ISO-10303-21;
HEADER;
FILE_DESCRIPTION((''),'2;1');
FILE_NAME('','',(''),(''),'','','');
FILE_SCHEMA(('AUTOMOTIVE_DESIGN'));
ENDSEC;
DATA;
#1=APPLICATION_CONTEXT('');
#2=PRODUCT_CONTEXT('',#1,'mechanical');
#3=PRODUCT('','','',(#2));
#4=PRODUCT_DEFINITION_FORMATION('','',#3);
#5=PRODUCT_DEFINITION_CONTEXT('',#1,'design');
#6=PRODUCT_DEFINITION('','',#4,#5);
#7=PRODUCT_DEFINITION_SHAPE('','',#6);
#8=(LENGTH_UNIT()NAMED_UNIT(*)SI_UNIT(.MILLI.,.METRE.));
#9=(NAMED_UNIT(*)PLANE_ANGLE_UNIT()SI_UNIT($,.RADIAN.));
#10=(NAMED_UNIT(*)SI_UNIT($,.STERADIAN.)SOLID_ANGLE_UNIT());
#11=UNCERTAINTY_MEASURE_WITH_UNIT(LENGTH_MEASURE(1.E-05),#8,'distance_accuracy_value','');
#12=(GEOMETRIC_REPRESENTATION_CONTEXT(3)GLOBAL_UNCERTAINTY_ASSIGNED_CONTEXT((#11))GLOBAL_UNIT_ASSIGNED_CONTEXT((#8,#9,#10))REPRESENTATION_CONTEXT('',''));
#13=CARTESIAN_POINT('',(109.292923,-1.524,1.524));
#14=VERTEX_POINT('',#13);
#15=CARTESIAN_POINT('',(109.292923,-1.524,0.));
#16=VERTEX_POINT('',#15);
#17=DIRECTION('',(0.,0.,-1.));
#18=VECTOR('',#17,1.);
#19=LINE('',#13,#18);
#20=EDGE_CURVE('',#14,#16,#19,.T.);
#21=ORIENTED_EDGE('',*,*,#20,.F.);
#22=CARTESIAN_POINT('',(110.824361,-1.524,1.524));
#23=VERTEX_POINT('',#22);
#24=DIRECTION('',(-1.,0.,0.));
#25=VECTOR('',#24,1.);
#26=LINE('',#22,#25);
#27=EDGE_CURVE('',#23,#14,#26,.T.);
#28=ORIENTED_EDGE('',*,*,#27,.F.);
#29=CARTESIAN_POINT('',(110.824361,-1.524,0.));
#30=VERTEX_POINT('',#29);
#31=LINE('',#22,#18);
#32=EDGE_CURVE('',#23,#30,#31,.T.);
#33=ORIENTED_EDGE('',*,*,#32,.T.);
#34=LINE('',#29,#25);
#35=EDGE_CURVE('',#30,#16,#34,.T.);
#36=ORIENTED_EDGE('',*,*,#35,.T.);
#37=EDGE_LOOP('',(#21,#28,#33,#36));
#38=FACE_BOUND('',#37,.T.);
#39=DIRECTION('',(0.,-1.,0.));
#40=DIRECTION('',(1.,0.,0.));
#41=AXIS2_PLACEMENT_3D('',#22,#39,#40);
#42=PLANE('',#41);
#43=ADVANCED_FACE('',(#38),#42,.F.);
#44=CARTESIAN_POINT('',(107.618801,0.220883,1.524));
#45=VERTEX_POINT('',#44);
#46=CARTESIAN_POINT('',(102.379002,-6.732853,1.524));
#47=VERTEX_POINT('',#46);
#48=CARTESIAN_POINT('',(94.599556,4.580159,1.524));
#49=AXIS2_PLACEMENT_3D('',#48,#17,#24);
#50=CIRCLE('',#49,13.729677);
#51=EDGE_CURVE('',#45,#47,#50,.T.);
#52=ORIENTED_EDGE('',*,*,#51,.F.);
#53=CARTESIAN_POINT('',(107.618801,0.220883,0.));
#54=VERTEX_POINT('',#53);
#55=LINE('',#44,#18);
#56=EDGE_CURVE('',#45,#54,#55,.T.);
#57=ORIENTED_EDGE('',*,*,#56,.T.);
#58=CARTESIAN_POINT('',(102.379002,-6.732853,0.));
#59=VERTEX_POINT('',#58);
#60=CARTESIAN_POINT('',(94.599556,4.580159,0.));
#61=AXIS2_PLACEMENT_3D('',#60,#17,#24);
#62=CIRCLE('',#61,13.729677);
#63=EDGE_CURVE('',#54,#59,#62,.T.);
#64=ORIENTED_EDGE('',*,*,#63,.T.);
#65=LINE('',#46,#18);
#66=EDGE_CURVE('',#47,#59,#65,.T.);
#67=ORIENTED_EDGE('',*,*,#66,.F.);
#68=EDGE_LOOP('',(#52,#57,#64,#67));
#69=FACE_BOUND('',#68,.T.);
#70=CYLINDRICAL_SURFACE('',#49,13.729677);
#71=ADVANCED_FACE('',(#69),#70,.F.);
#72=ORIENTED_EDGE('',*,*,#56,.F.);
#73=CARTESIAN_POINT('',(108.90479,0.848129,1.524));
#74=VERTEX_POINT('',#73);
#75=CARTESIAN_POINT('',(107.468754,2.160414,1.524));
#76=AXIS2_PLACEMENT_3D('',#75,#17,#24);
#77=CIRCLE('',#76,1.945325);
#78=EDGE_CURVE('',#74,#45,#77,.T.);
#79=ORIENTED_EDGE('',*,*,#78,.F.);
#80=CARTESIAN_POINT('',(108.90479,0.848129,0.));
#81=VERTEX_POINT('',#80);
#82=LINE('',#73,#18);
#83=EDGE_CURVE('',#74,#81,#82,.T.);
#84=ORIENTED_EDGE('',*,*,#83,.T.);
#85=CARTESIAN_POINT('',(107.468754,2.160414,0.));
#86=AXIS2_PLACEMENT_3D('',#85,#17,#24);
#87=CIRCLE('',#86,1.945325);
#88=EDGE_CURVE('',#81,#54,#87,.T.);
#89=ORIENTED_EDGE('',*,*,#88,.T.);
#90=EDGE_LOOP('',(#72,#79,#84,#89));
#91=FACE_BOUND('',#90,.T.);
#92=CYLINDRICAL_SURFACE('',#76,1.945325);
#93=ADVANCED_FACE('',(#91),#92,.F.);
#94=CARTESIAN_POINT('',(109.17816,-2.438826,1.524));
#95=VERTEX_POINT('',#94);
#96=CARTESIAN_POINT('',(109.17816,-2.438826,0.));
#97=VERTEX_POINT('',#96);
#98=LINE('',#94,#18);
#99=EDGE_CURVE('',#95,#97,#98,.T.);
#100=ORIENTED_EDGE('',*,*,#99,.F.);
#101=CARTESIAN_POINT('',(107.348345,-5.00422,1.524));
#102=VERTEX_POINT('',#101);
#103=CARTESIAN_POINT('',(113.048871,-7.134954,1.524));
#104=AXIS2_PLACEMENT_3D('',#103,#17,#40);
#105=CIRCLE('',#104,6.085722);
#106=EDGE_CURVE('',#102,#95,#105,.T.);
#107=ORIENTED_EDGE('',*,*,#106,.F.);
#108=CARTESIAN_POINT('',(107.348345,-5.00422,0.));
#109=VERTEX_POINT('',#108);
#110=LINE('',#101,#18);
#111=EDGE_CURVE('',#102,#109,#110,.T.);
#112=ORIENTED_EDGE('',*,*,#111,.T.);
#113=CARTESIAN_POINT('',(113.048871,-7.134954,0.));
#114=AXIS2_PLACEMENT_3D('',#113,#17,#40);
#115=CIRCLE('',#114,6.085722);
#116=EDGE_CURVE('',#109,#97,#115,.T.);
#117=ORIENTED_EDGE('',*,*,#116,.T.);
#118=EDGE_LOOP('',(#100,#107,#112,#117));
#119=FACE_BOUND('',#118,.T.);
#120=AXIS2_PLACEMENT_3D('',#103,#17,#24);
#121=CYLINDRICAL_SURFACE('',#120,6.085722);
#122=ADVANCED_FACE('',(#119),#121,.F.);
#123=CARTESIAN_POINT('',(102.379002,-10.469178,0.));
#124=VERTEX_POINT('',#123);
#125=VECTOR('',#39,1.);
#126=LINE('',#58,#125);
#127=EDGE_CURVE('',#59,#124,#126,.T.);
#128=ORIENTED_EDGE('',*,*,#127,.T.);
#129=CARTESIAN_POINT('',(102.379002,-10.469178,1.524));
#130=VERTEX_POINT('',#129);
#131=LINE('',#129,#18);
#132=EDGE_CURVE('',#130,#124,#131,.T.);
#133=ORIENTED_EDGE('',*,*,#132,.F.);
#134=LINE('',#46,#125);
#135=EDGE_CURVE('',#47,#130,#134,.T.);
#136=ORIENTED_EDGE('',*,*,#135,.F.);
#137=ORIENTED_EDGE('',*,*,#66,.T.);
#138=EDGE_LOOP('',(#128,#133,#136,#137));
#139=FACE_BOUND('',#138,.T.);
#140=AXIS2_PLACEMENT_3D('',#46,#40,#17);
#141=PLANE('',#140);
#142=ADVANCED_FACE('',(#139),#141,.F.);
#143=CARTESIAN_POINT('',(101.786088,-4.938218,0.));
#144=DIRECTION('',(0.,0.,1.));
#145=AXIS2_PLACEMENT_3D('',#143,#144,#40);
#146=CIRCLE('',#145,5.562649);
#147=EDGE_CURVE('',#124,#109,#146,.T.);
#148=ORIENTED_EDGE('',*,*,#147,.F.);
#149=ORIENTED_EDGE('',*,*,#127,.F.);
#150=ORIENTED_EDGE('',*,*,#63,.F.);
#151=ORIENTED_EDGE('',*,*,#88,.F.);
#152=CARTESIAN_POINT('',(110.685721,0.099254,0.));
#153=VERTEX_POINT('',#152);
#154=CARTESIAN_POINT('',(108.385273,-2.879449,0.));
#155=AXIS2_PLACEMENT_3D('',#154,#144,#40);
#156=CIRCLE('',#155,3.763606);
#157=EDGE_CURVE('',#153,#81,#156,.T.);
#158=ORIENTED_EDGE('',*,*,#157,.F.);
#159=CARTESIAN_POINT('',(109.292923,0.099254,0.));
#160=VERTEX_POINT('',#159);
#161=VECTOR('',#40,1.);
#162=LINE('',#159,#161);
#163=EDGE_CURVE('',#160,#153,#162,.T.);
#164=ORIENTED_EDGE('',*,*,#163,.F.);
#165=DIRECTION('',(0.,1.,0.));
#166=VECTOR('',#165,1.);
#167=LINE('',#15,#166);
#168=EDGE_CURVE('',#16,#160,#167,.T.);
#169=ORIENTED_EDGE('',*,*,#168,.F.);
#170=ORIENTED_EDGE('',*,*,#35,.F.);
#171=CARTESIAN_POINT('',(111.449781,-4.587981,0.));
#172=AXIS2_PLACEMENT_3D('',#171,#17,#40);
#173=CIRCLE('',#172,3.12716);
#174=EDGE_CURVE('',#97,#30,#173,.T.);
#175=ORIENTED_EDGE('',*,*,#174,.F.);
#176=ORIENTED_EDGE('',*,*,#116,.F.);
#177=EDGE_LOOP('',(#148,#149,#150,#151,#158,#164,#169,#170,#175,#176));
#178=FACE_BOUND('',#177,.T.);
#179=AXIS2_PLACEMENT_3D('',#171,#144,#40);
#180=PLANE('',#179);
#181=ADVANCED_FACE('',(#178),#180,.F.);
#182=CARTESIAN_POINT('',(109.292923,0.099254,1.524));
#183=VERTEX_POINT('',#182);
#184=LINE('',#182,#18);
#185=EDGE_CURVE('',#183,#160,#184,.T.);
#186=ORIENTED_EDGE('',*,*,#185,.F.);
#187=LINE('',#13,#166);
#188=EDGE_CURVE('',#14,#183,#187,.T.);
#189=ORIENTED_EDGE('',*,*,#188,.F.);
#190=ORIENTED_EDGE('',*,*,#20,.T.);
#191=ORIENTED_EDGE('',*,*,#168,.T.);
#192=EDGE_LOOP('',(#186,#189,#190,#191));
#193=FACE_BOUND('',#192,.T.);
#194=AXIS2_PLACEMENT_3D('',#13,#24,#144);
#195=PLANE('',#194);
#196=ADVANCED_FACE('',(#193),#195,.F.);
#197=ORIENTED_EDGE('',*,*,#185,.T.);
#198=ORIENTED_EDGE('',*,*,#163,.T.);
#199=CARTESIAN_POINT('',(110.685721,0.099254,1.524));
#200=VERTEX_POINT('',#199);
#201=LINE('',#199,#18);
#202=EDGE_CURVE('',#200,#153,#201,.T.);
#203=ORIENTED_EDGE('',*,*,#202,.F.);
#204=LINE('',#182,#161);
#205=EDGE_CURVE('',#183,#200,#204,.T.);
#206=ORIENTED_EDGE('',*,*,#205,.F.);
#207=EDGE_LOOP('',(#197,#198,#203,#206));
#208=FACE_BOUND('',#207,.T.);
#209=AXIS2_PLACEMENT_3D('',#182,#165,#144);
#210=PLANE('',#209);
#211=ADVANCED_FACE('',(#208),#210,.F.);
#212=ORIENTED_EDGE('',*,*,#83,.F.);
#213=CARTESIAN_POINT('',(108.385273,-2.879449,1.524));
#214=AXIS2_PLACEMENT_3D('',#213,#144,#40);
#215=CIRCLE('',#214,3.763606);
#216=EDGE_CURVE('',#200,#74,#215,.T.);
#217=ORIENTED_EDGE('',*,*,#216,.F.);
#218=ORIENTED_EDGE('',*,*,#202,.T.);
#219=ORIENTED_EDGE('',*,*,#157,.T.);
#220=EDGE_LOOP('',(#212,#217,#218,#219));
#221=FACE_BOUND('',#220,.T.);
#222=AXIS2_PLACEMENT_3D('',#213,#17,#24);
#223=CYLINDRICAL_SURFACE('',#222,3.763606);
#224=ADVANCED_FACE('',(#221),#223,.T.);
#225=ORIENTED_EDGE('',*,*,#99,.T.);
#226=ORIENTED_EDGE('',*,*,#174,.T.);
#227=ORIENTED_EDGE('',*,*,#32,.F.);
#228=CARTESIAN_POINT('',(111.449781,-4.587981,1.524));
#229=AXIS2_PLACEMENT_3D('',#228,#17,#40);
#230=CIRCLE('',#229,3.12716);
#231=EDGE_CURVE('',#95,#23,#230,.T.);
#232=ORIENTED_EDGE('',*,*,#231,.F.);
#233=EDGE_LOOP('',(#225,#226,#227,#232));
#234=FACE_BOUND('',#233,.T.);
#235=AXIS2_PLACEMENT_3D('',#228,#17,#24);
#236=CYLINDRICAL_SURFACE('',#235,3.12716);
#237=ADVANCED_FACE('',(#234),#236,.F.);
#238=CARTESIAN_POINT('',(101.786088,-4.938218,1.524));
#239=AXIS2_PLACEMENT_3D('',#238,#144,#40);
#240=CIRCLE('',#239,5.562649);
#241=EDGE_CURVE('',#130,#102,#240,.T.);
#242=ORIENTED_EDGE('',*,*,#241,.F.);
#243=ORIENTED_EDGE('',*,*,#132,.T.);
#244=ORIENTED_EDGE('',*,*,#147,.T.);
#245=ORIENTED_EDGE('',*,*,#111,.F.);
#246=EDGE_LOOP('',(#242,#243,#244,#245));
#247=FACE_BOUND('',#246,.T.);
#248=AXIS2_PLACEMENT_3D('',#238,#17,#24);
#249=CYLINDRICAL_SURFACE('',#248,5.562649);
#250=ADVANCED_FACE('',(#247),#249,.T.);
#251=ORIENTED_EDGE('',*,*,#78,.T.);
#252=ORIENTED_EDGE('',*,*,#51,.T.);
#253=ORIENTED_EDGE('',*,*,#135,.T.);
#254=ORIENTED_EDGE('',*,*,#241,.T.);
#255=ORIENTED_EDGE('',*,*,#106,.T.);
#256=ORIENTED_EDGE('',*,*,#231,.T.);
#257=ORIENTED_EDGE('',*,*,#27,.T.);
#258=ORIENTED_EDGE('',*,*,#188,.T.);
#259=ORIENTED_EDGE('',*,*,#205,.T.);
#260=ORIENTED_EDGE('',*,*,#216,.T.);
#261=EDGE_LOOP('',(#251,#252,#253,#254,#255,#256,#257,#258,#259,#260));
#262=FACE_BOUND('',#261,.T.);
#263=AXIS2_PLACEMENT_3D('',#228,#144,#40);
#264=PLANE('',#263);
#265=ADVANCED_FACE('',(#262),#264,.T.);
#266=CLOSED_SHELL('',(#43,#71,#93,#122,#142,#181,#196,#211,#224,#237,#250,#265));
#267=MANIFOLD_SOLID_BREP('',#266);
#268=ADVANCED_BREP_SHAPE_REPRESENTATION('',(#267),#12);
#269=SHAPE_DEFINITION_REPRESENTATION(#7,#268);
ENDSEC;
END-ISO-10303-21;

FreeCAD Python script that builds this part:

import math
import FreeCAD as App
import Part
import Sketcher
Q = App.Units.Quantity

doc = App.newDocument("Part")
body = doc.addObject("PartDesign::Body", "Body")

sketch1 = body.newObject("Sketcher::SketchObject", "Sketch")
sketch1.AttachmentSupport = (doc.getObject("XY_Plane"), [""])
sketch1.MapMode = "FlatFace"
sketch1.addGeometry(Part.LineSegment(App.Vector(110.8, -1.5, 0), App.Vector(109.3, -1.5, 0)), False)
sketch1.addGeometry(Part.LineSegment(App.Vector(109.3, -1.5, 0), App.Vector(109.3, 0.1, 0)), False)
sketch1.addGeometry(Part.LineSegment(App.Vector(109.3, 0.1, 0), App.Vector(110.7, 0.1, 0)), False)
sketch1.addGeometry(Part.ArcOfCircle(Part.Circle(App.Vector(108.4, -2.9, 0), App.Vector(0, 0, 1), 3.8), math.radians(52), math.radians(82)), False)
sketch1.addGeometry(Part.ArcOfCircle(Part.Circle(App.Vector(107.5, 2.2, 0), App.Vector(0, 0, 1), 1.9), math.radians(-86), math.radians(-42)), False)
sketch1.addGeometry(Part.ArcOfCircle(Part.Circle(App.Vector(94.6, 4.6, 0), App.Vector(0, 0, 1), 13.7), math.radians(-55), math.radians(-19)), False)
sketch1.addGeometry(Part.LineSegment(App.Vector(102.4, -6.7, 0), App.Vector(102.4, -10.5, 0)), False)
sketch1.addGeometry(Part.ArcOfCircle(Part.Circle(App.Vector(101.8, -4.9, 0), App.Vector(0, 0, 1), 5.6), math.radians(-84), math.radians(-1)), False)
sketch1.addGeometry(Part.ArcOfCircle(Part.Circle(App.Vector(113, -7.1, 0), App.Vector(0, 0, 1), 6.1), math.radians(129), math.radians(160)), False)
sketch1.addGeometry(Part.ArcOfCircle(Part.Circle(App.Vector(111.4, -4.6, 0), App.Vector(0, 0, 1), 3.1), math.radians(102), math.radians(137)), False)
sketch1.addConstraint(Sketcher.Constraint("Coincident", 0, 2, 1, 1))
sketch1.addConstraint(Sketcher.Constraint("Coincident", 1, 2, 2, 1))
sketch1.addConstraint(Sketcher.Constraint("Coincident", 2, 2, 3, 1))
sketch1.addConstraint(Sketcher.Constraint("Coincident", 3, 2, 4, 2))
sketch1.addConstraint(Sketcher.Constraint("Coincident", 4, 1, 5, 2))
sketch1.addConstraint(Sketcher.Constraint("Coincident", 5, 1, 6, 1))
sketch1.addConstraint(Sketcher.Constraint("Coincident", 6, 2, 7, 1))
sketch1.addConstraint(Sketcher.Constraint("Coincident", 7, 2, 8, 2))
sketch1.addConstraint(Sketcher.Constraint("Coincident", 8, 1, 9, 2))
sketch1.addConstraint(Sketcher.Constraint("Coincident", 9, 1, 0, 1))
sketch1.addConstraint(Sketcher.Constraint("Horizontal", 0))
sketch1.addConstraint(Sketcher.Constraint("Vertical", 1))
sketch1.addConstraint(Sketcher.Constraint("Horizontal", 2))
sketch1.addConstraint(Sketcher.Constraint("Vertical", 6))
sketch1.addConstraint(Sketcher.Constraint("DistanceY", 0, 2, -1, 1, Q("0.06 in")))
sketch1.addConstraint(Sketcher.Constraint("Radius", 7, Q("5.562649 mm")))
sketch1.addConstraint(Sketcher.Constraint("Radius", 9, Q("3.12716 mm")))
sketch1.addConstraint(Sketcher.Constraint("Radius", 3, Q("3.763606 mm")))
sketch1.addConstraint(Sketcher.Constraint("Radius", 4, Q("1.945325 mm")))
sketch1.addConstraint(Sketcher.Constraint("Radius", 5, Q("13.729677 mm")))
sketch1.addConstraint(Sketcher.Constraint("Radius", 8, Q("6.085722 mm")))
sketch1.addConstraint(Sketcher.Constraint("DistanceX", -1, 1, 4, 1, Q("107.618801 mm")))
sketch1.addConstraint(Sketcher.Constraint("DistanceX", -1, 1, 5, 1, Q("102.379002 mm")))
sketch1.addConstraint(Sketcher.Constraint("DistanceX", 8, 1, 9, 1, Q("1.646201 mm")))
sketch1.addConstraint(Sketcher.Constraint("DistanceX", 0, 2, 0, 1, Q("1.531437 mm")))
sketch1.addConstraint(Sketcher.Constraint("DistanceX", 2, 1, 2, 2, Q("1.392797 mm")))
sketch1.addConstraint(Sketcher.Constraint("DistanceY", 1, 1, 1, 2, Q("1.623254 mm")))
sketch1.addConstraint(Sketcher.Constraint("DistanceY", 6, 2, 6, 1, Q("3.736325 mm")))
sketch1.addConstraint(Sketcher.Constraint("DistanceY", 3, 3, -1, 1, Q("2.879449 mm")))
sketch1.addConstraint(Sketcher.Constraint("DistanceY", -1, 1, 5, 3, Q("4.580159 mm")))
sketch1.addConstraint(Sketcher.Constraint("DistanceX", -1, 1, 7, 3, Q("101.786088 mm")))
sketch1.addConstraint(Sketcher.Constraint("DistanceY", 7, 3, -1, 1, Q("4.938218 mm")))
sketch1.addConstraint(Sketcher.Constraint("DistanceX", -1, 1, 8, 3, Q("113.048871 mm")))
sketch1.addConstraint(Sketcher.Constraint("DistanceX", -1, 1, 9, 3, Q("111.449781 mm")))
sketch1.addConstraint(Sketcher.Constraint("DistanceY", 9, 3, -1, 1, Q("4.587981 mm")))
sketch1.addConstraint(Sketcher.Constraint("DistanceX", -1, 1, 3, 2, Q("108.90479 mm")))
pad1 = body.newObject("PartDesign::Pad", "Pad")
pad1.Profile = sketch1
pad1.Length = Q("0.06 in")

doc.recompute()
